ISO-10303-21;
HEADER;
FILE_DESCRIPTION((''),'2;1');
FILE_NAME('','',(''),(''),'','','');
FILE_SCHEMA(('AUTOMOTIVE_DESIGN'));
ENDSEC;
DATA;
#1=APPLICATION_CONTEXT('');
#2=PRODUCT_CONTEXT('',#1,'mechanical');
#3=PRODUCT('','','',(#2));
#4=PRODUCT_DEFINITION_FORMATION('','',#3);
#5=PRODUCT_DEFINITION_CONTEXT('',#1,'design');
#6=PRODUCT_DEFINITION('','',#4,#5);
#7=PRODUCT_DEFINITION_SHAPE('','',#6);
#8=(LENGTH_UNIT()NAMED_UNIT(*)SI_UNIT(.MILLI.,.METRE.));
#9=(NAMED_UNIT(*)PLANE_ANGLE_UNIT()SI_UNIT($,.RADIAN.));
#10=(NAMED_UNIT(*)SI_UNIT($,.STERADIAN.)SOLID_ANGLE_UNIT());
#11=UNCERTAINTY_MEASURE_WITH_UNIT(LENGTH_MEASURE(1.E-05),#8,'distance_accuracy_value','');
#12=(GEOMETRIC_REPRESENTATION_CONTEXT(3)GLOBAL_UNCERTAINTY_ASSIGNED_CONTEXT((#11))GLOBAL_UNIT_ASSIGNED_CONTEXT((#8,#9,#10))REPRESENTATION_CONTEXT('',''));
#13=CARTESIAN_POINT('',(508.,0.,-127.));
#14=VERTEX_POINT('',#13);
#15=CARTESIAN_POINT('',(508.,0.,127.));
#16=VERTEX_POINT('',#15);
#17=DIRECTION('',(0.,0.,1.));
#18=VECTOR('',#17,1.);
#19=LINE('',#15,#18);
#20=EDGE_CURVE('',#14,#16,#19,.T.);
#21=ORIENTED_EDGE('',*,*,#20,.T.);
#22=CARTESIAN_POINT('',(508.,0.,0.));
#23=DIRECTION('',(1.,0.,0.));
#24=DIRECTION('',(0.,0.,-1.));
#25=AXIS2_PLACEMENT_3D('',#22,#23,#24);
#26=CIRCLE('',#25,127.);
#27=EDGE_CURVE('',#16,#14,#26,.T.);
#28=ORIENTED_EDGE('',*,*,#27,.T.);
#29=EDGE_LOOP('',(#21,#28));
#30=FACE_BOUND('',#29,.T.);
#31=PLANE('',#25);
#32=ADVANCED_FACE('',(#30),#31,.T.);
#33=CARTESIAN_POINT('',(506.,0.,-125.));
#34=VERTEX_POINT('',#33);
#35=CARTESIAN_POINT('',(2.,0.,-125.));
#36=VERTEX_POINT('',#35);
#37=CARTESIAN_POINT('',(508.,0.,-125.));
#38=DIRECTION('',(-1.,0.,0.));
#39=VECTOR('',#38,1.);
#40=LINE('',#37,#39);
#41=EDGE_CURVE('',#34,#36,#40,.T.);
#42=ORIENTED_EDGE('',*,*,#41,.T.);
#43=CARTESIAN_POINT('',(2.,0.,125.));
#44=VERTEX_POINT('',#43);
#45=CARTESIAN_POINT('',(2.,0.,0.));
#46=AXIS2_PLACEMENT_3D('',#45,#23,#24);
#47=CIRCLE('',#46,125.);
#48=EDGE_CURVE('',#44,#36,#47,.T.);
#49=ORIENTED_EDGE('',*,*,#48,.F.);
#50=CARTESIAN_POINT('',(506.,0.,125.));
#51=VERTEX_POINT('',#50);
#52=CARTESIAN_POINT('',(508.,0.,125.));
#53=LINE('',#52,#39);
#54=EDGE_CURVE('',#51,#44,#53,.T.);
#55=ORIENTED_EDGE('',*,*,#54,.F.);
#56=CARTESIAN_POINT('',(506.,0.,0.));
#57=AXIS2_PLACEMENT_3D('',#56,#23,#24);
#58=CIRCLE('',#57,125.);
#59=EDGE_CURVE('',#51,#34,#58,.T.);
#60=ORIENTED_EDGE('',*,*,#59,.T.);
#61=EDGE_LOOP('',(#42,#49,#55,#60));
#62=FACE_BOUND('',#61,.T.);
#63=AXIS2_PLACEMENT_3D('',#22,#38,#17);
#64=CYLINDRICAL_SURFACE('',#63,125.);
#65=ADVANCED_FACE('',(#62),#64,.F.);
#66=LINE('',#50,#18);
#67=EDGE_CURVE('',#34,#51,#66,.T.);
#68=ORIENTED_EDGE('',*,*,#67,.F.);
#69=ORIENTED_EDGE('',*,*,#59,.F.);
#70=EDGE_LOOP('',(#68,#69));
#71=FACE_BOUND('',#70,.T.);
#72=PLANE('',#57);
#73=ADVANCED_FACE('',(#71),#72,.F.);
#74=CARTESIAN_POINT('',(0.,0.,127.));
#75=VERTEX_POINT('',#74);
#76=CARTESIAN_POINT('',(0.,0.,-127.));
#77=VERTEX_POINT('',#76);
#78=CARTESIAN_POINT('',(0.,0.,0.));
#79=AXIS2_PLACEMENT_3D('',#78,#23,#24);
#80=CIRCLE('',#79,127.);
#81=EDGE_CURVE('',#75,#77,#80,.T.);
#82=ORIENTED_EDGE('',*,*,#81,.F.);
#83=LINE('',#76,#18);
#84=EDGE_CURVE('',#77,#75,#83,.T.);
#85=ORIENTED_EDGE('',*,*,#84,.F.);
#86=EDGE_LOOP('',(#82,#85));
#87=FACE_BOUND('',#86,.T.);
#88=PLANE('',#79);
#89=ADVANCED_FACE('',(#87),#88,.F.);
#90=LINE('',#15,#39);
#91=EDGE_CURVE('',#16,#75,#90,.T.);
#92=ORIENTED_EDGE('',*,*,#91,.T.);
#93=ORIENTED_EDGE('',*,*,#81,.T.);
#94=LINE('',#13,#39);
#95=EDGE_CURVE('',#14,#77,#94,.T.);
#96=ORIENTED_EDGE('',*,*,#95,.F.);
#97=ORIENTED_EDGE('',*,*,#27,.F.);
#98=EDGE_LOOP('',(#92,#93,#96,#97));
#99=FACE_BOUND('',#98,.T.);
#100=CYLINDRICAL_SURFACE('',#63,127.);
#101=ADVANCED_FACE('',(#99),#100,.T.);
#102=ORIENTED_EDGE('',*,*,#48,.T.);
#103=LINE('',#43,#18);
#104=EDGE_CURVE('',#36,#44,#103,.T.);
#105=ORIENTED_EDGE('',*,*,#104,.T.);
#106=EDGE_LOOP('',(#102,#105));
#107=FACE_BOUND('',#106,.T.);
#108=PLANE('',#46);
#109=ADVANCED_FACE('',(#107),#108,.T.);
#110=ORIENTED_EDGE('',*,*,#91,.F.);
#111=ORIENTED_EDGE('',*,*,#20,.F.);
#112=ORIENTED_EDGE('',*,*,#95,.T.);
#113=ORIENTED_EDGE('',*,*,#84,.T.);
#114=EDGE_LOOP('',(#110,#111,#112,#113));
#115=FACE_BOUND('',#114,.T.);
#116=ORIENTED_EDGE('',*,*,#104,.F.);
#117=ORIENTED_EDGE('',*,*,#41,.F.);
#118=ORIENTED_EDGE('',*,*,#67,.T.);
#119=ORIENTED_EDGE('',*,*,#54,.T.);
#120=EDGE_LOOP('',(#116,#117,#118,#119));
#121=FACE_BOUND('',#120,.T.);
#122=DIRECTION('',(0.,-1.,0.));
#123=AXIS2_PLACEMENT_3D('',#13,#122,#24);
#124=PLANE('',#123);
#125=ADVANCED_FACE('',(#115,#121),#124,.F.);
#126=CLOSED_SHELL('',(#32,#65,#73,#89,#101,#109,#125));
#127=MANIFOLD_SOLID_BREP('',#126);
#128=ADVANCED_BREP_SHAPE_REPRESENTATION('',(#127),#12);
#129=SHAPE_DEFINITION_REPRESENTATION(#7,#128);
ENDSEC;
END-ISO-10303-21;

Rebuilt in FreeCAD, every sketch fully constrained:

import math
import FreeCAD as App
import Part
import Sketcher
from FreeCAD import Vector

doc = App.newDocument("Part")
params = doc.addObject("Spreadsheet::Sheet", "Params")
for row, (alias, value) in enumerate([
    ("sketch1_radius", "125 mm"),
    ("sketch1_radius2", "127 mm"),
    ("pad1_length", "508 mm"),
    ("sketch2_radius", "125 mm"),
    ("pad2_length", "2 mm"),
    ("linearpattern_pitch", "506 mm"),
], start=1):
    params.set(f"A{row}", alias)
    params.set(f"B{row}", "=" + value)
    params.setAlias(f"B{row}", alias)

body = doc.addObject("PartDesign::Body", "Body")

sketch1 = body.newObject("Sketcher::SketchObject", "Sketch")
sketch1.AttachmentSupport = (doc.getObject("YZ_Plane"), [""])
sketch1.MapMode = "FlatFace"
sketch1.addGeometry(Part.LineSegment(Vector(0, -127, 0), Vector(0, -125, 0)), False)
sketch1.addGeometry(Part.ArcOfCircle(Part.Circle(Vector(0, 0, 0), Vector(0, 0, 1), 125), math.radians(90), math.radians(270)), False)
sketch1.addGeometry(Part.LineSegment(Vector(0, 125, 0), Vector(0, 127, 0)), False)
sketch1.addGeometry(Part.ArcOfCircle(Part.Circle(Vector(0, 0, 0), Vector(0, 0, 1), 127), math.radians(90), math.radians(270)), False)
sketch1.addConstraint(Sketcher.Constraint("Coincident", 0, 2, 1, 2))
sketch1.addConstraint(Sketcher.Constraint("Coincident", 1, 1, 2, 1))
sketch1.addConstraint(Sketcher.Constraint("Coincident", 2, 2, 3, 1))
sketch1.addConstraint(Sketcher.Constraint("Coincident", 3, 2, 0, 1))
sketch1.addConstraint(Sketcher.Constraint("Vertical", 0))
sketch1.addConstraint(Sketcher.Constraint("Vertical", 2))
sketch1.addConstraint(Sketcher.Constraint("Coincident", 1, 3, -1, 1))
sketch1.addConstraint(Sketcher.Constraint("Coincident", 3, 3, -1, 1))
sketch1.addConstraint(Sketcher.Constraint("PointOnObject", 0, 2, -2))
sketch1.addConstraint(Sketcher.Constraint("PointOnObject", 1, 1, -2))
sketch1.addConstraint(Sketcher.Constraint("Radius", 1, 125.0))
sketch1.addConstraint(Sketcher.Constraint("Radius", 3, 127.0))
sketch1.setExpression("Constraints[10]", "Params.sketch1_radius")
sketch1.setExpression("Constraints[11]", "Params.sketch1_radius2")
pad1 = body.newObject("PartDesign::Pad", "Pad")
pad1.Profile = sketch1
pad1.setExpression("Length", "Params.pad1_length")

sketch2 = body.newObject("Sketcher::SketchObject", "Sketch001")
sketch2.AttachmentSupport = (doc.getObject("YZ_Plane"), [""])
sketch2.MapMode = "FlatFace"
sketch2.AttachmentOffset = App.Placement(Vector(0, 0, 506), App.Rotation())
sketch2.addGeometry(Part.LineSegment(Vector(0, -125, 0), Vector(0, 125, 0)), False)
sketch2.addGeometry(Part.ArcOfCircle(Part.Circle(Vector(0, 0, 0), Vector(0, 0, 1), 125), math.radians(90), math.radians(270)), False)
sketch2.addConstraint(Sketcher.Constraint("Coincident", 0, 1, 1, 2))
sketch2.addConstraint(Sketcher.Constraint("Coincident", 1, 1, 0, 2))
sketch2.addConstraint(Sketcher.Constraint("Vertical", 0))
sketch2.addConstraint(Sketcher.Constraint("Coincident", 1, 3, -1, 1))
sketch2.addConstraint(Sketcher.Constraint("PointOnObject", 0, 1, -2))
sketch2.addConstraint(Sketcher.Constraint("Radius", 1, 125.0))
sketch2.setExpression("Constraints[5]", "Params.sketch2_radius")
pad2 = body.newObject("PartDesign::Pad", "Pad001")
pad2.Profile = sketch2
pad2.setExpression("Length", "Params.pad2_length")
doc.recompute()

linearpattern = body.newObject("PartDesign::LinearPattern", "LinearPattern")
linearpattern.Originals = [pad2]
linearpattern.Direction = (doc.getObject("X_Axis"), [""])
linearpattern.Mode = "offset"
linearpattern.setExpression("Offset", "Params.linearpattern_pitch")
linearpattern.Occurrences = 2
linearpattern.Reversed = True
body.Tip = linearpattern

doc.recompute()
